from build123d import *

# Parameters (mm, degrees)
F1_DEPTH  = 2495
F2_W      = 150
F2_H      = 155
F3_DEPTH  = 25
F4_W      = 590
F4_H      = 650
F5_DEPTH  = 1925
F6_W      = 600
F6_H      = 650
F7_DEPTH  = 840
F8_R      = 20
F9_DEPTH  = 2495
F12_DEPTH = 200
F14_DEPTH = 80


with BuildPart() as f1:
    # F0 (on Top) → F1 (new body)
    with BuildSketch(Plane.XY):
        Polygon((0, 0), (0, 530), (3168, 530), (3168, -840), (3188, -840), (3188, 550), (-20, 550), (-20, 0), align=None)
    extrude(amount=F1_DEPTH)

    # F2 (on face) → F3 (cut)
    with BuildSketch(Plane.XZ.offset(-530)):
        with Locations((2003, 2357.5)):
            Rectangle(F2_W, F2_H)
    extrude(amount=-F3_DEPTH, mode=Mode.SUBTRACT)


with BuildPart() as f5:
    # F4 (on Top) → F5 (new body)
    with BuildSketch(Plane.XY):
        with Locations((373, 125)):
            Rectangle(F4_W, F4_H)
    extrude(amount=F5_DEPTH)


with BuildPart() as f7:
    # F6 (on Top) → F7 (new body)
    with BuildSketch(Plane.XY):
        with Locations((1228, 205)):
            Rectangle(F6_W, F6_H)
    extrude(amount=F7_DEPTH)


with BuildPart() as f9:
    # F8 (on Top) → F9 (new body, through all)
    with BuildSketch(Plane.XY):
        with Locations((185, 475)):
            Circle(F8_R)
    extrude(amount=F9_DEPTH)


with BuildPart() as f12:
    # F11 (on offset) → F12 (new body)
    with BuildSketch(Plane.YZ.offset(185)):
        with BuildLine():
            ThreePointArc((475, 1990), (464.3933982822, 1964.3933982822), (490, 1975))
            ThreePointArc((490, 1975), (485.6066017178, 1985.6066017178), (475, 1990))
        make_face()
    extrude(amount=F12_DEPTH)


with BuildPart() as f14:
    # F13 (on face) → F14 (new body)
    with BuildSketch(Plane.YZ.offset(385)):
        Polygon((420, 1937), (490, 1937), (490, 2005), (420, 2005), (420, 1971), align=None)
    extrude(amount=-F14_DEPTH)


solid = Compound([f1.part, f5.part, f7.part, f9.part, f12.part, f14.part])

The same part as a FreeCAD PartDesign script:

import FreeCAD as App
import Part
import Sketcher
Q = App.Units.Quantity

doc = App.newDocument("Part")
body = doc.addObject("PartDesign::Body", "Body")

sketch1 = doc.addObject("Sketcher::SketchObject", "Sketch")
body.addObject(sketch1)
sketch1.AttachmentSupport = (doc.XY_Plane, [""])
sketch1.MapMode = "FlatFace"
sketch1.addGeometry([
    Part.LineSegment(App.Vector(0, 0, 0), App.Vector(0, 530, 0)),
    Part.LineSegment(App.Vector(0, 530, 0), App.Vector(3168, 530, 0)),
    Part.LineSegment(App.Vector(3168, 530, 0), App.Vector(3168, -840, 0)),
    Part.LineSegment(App.Vector(3168, -840, 0), App.Vector(3188, -840, 0)),
    Part.LineSegment(App.Vector(3188, -840, 0), App.Vector(3188, 550, 0)),
    Part.LineSegment(App.Vector(3188, 550, 0), App.Vector(-20, 550, 0)),
    Part.LineSegment(App.Vector(-20, 550, 0), App.Vector(-20, 0, 0)),
    Part.LineSegment(App.Vector(-20, 0, 0), App.Vector(0, 0, 0)),
], False)
sketch1.addConstraint([
    Sketcher.Constraint("Coincident", 0, 2, 1, 1),
    Sketcher.Constraint("Coincident", 1, 2, 2, 1),
    Sketcher.Constraint("Coincident", 2, 2, 3, 1),
    Sketcher.Constraint("Coincident", 3, 2, 4, 1),
    Sketcher.Constraint("Coincident", 4, 2, 5, 1),
    Sketcher.Constraint("Coincident", 5, 2, 6, 1),
    Sketcher.Constraint("Coincident", 6, 2, 7, 1),
    Sketcher.Constraint("Coincident", 7, 2, 0, 1),
    Sketcher.Constraint("Vertical", 0),
    Sketcher.Constraint("Horizontal", 1),
    Sketcher.Constraint("Vertical", 2),
    Sketcher.Constraint("Horizontal", 3),
    Sketcher.Constraint("Vertical", 4),
    Sketcher.Constraint("Horizontal", 5),
    Sketcher.Constraint("Vertical", 6),
    Sketcher.Constraint("Horizontal", 7),
    Sketcher.Constraint("Coincident", 7, 2, -1, 1),
    Sketcher.Constraint("Equal", 3, 7),
    Sketcher.Constraint("DistanceX", 1, 1, 1, 2, Q("3168 mm")),
    Sketcher.Constraint("DistanceX", 3, 1, 3, 2, Q("20 mm")),
    Sketcher.Constraint("DistanceY", 0, 1, 0, 2, Q("530 mm")),
    Sketcher.Constraint("DistanceY", 2, 2, 2, 1, Q("1370 mm")),
    Sketcher.Constraint("DistanceY", 4, 1, 4, 2, Q("1390 mm")),
])
pad1 = doc.addObject("PartDesign::Pad", "Pad")
body.addObject(pad1)
pad1.Profile = sketch1
pad1.Length = 2495

sketch2 = doc.addObject("Sketcher::SketchObject", "Sketch001")
body.addObject(sketch2)
sketch2.AttachmentSupport = (doc.XZ_Plane, [""])
sketch2.MapMode = "FlatFace"
sketch2.AttachmentOffset = App.Placement(App.Vector(0, 0, -530), App.Rotation())
sketch2.addGeometry([
    Part.LineSegment(App.Vector(1928, 2435, 0), App.Vector(1928, 2280, 0)),
    Part.LineSegment(App.Vector(1928, 2280, 0), App.Vector(2078, 2280, 0)),
    Part.LineSegment(App.Vector(2078, 2280, 0), App.Vector(2078, 2435, 0)),
    Part.LineSegment(App.Vector(2078, 2435, 0), App.Vector(1928, 2435, 0)),
], False)
sketch2.addConstraint([
    Sketcher.Constraint("Coincident", 0, 2, 1, 1),
    Sketcher.Constraint("Coincident", 1, 2, 2, 1),
    Sketcher.Constraint("Coincident", 2, 2, 3, 1),
    Sketcher.Constraint("Coincident", 3, 2, 0, 1),
    Sketcher.Constraint("Vertical", 0),
    Sketcher.Constraint("Horizontal", 1),
    Sketcher.Constraint("Vertical", 2),
    Sketcher.Constraint("Horizontal", 3),
    Sketcher.Constraint("DistanceX", 1, 1, 1, 2, Q("150 mm")),
    Sketcher.Constraint("DistanceY", 0, 2, 0, 1, Q("155 mm")),
    Sketcher.Constraint("DistanceX", -1, 1, 0, 2, Q("1928 mm")),
    Sketcher.Constraint("DistanceY", -1, 1, 0, 2, Q("2280 mm")),
])
pocket1 = doc.addObject("PartDesign::Pocket", "Pocket")
body.addObject(pocket1)
pocket1.Profile = sketch2
pocket1.Length = 25
body2 = doc.addObject("PartDesign::Body", "Body001")

sketch3 = doc.addObject("Sketcher::SketchObject", "Sketch002")
body2.addObject(sketch3)
sketch3.AttachmentSupport = (doc.getObject("XY_Plane001"), [""])
sketch3.MapMode = "FlatFace"
sketch3.addGeometry([
    Part.LineSegment(App.Vector(78, 450, 0), App.Vector(78, -200, 0)),
    Part.LineSegment(App.Vector(78, -200, 0), App.Vector(668, -200, 0)),
    Part.LineSegment(App.Vector(668, -200, 0), App.Vector(668, 450, 0)),
    Part.LineSegment(App.Vector(668, 450, 0), App.Vector(78, 450, 0)),
], False)
sketch3.addConstraint([
    Sketcher.Constraint("Coincident", 0, 2, 1, 1),
    Sketcher.Constraint("Coincident", 1, 2, 2, 1),
    Sketcher.Constraint("Coincident", 2, 2, 3, 1),
    Sketcher.Constraint("Coincident", 3, 2, 0, 1),
    Sketcher.Constraint("Vertical", 0),
    Sketcher.Constraint("Horizontal", 1),
    Sketcher.Constraint("Vertical", 2),
    Sketcher.Constraint("Horizontal", 3),
    Sketcher.Constraint("DistanceX", 1, 1, 1, 2, Q("590 mm")),
    Sketcher.Constraint("DistanceY", 0, 2, 0, 1, Q("650 mm")),
    Sketcher.Constraint("DistanceX", -1, 1, 0, 2, Q("78 mm")),
    Sketcher.Constraint("DistanceY", 0, 2, -1, 1, Q("200 mm")),
])
pad2 = doc.addObject("PartDesign::Pad", "Pad001")
body2.addObject(pad2)
pad2.Profile = sketch3
pad2.Length = 1925
body3 = doc.addObject("PartDesign::Body", "Body002")

sketch4 = doc.addObject("Sketcher::SketchObject", "Sketch003")
body3.addObject(sketch4)
sketch4.AttachmentSupport = (doc.getObject("XY_Plane002"), [""])
sketch4.MapMode = "FlatFace"
sketch4.addGeometry([
    Part.LineSegment(App.Vector(928, 530, 0), App.Vector(928, -120, 0)),
    Part.LineSegment(App.Vector(928, -120, 0), App.Vector(1528, -120, 0)),
    Part.LineSegment(App.Vector(1528, -120, 0), App.Vector(1528, 530, 0)),
    Part.LineSegment(App.Vector(1528, 530, 0), App.Vector(928, 530, 0)),
], False)
sketch4.addConstraint([
    Sketcher.Constraint("Coincident", 0, 2, 1, 1),
    Sketcher.Constraint("Coincident", 1, 2, 2, 1),
    Sketcher.Constraint("Coincident", 2, 2, 3, 1),
    Sketcher.Constraint("Coincident", 3, 2, 0, 1),
    Sketcher.Constraint("Vertical", 0),
    Sketcher.Constraint("Horizontal", 1),
    Sketcher.Constraint("Vertical", 2),
    Sketcher.Constraint("Horizontal", 3),
    Sketcher.Constraint("DistanceX", 1, 1, 1, 2, Q("600 mm")),
    Sketcher.Constraint("DistanceY", 0, 2, 0, 1, Q("650 mm")),
    Sketcher.Constraint("DistanceX", -1, 1, 0, 2, Q("928 mm")),
    Sketcher.Constraint("DistanceY", 0, 2, -1, 1, Q("120 mm")),
])
pad3 = doc.addObject("PartDesign::Pad", "Pad002")
body3.addObject(pad3)
pad3.Profile = sketch4
pad3.Length = 840
body4 = doc.addObject("PartDesign::Body", "Body003")

sketch5 = doc.addObject("Sketcher::SketchObject", "Sketch004")
body4.addObject(sketch5)
sketch5.AttachmentSupport = (doc.getObject("XY_Plane003"), [""])
sketch5.MapMode = "FlatFace"
sketch5.addGeometry(Part.Circle(App.Vector(185, 475, 0), App.Vector(0, 0, 1), 20), False)
sketch5.addConstraint([
    Sketcher.Constraint("Diameter", 0, Q("40 mm")),
    Sketcher.Constraint("DistanceX", -1, 1, 0, 3, Q("185 mm")),
    Sketcher.Constraint("DistanceY", -1, 1, 0, 3, Q("475 mm")),
])
pad4 = doc.addObject("PartDesign::Pad", "Pad003")
body4.addObject(pad4)
pad4.Profile = sketch5
pad4.Length = 2495
body5 = doc.addObject("PartDesign::Body", "Body004")

sketch6 = doc.addObject("Sketcher::SketchObject", "Sketch005")
body5.addObject(sketch6)
sketch6.AttachmentSupport = (doc.getObject("YZ_Plane004"), [""])
sketch6.MapMode = "FlatFace"
sketch6.AttachmentOffset = App.Placement(App.Vector(0, 0, 185), App.Rotation())
sketch6.addGeometry(Part.Circle(App.Vector(475, 1975, 0), App.Vector(0, 0, 1), 15), False)
sketch6.addConstraint([
    Sketcher.Constraint("Diameter", 0, Q("30 mm")),
    Sketcher.Constraint("DistanceX", -1, 1, 0, 3, Q("475 mm")),
    Sketcher.Constraint("DistanceY", -1, 1, 0, 3, Q("1975 mm")),
])
pad5 = doc.addObject("PartDesign::Pad", "Pad004")
body5.addObject(pad5)
pad5.Profile = sketch6
pad5.Length = 200
body6 = doc.addObject("PartDesign::Body", "Body005")

sketch7 = doc.addObject("Sketcher::SketchObject", "Sketch006")
body6.addObject(sketch7)
sketch7.AttachmentSupport = (doc.getObject("YZ_Plane005"), [""])
sketch7.MapMode = "FlatFace"
sketch7.AttachmentOffset = App.Placement(App.Vector(0, 0, 385), App.Rotation())
sketch7.addGeometry([
    Part.LineSegment(App.Vector(420, 1937, 0), App.Vector(490, 1937, 0)),
    Part.LineSegment(App.Vector(490, 1937, 0), App.Vector(490, 2005, 0)),
    Part.LineSegment(App.Vector(490, 2005, 0), App.Vector(420, 2005, 0)),
    Part.LineSegment(App.Vector(420, 2005, 0), App.Vector(420, 1937, 0)),
], False)
sketch7.addConstraint([
    Sketcher.Constraint("Coincident", 0, 2, 1, 1),
    Sketcher.Constraint("Coincident", 1, 2, 2, 1),
    Sketcher.Constraint("Coincident", 2, 2, 3, 1),
    Sketcher.Constraint("Coincident", 3, 2, 0, 1),
    Sketcher.Constraint("Horizontal", 0),
    Sketcher.Constraint("Vertical", 1),
    Sketcher.Constraint("Horizontal", 2),
    Sketcher.Constraint("Vertical", 3),
    Sketcher.Constraint("DistanceX", 0, 1, 0, 2, Q("70 mm")),
    Sketcher.Constraint("DistanceY", 1, 1, 1, 2, Q("68 mm")),
    Sketcher.Constraint("DistanceX", -1, 1, 0, 2, Q("490 mm")),
    Sketcher.Constraint("DistanceY", -1, 1, 0, 2, Q("1937 mm")),
])
pad6 = doc.addObject("PartDesign::Pad", "Pad005")
body6.addObject(pad6)
pad6.Profile = sketch7
pad6.Length = 80
pad6.Reversed = True

doc.recompute()
